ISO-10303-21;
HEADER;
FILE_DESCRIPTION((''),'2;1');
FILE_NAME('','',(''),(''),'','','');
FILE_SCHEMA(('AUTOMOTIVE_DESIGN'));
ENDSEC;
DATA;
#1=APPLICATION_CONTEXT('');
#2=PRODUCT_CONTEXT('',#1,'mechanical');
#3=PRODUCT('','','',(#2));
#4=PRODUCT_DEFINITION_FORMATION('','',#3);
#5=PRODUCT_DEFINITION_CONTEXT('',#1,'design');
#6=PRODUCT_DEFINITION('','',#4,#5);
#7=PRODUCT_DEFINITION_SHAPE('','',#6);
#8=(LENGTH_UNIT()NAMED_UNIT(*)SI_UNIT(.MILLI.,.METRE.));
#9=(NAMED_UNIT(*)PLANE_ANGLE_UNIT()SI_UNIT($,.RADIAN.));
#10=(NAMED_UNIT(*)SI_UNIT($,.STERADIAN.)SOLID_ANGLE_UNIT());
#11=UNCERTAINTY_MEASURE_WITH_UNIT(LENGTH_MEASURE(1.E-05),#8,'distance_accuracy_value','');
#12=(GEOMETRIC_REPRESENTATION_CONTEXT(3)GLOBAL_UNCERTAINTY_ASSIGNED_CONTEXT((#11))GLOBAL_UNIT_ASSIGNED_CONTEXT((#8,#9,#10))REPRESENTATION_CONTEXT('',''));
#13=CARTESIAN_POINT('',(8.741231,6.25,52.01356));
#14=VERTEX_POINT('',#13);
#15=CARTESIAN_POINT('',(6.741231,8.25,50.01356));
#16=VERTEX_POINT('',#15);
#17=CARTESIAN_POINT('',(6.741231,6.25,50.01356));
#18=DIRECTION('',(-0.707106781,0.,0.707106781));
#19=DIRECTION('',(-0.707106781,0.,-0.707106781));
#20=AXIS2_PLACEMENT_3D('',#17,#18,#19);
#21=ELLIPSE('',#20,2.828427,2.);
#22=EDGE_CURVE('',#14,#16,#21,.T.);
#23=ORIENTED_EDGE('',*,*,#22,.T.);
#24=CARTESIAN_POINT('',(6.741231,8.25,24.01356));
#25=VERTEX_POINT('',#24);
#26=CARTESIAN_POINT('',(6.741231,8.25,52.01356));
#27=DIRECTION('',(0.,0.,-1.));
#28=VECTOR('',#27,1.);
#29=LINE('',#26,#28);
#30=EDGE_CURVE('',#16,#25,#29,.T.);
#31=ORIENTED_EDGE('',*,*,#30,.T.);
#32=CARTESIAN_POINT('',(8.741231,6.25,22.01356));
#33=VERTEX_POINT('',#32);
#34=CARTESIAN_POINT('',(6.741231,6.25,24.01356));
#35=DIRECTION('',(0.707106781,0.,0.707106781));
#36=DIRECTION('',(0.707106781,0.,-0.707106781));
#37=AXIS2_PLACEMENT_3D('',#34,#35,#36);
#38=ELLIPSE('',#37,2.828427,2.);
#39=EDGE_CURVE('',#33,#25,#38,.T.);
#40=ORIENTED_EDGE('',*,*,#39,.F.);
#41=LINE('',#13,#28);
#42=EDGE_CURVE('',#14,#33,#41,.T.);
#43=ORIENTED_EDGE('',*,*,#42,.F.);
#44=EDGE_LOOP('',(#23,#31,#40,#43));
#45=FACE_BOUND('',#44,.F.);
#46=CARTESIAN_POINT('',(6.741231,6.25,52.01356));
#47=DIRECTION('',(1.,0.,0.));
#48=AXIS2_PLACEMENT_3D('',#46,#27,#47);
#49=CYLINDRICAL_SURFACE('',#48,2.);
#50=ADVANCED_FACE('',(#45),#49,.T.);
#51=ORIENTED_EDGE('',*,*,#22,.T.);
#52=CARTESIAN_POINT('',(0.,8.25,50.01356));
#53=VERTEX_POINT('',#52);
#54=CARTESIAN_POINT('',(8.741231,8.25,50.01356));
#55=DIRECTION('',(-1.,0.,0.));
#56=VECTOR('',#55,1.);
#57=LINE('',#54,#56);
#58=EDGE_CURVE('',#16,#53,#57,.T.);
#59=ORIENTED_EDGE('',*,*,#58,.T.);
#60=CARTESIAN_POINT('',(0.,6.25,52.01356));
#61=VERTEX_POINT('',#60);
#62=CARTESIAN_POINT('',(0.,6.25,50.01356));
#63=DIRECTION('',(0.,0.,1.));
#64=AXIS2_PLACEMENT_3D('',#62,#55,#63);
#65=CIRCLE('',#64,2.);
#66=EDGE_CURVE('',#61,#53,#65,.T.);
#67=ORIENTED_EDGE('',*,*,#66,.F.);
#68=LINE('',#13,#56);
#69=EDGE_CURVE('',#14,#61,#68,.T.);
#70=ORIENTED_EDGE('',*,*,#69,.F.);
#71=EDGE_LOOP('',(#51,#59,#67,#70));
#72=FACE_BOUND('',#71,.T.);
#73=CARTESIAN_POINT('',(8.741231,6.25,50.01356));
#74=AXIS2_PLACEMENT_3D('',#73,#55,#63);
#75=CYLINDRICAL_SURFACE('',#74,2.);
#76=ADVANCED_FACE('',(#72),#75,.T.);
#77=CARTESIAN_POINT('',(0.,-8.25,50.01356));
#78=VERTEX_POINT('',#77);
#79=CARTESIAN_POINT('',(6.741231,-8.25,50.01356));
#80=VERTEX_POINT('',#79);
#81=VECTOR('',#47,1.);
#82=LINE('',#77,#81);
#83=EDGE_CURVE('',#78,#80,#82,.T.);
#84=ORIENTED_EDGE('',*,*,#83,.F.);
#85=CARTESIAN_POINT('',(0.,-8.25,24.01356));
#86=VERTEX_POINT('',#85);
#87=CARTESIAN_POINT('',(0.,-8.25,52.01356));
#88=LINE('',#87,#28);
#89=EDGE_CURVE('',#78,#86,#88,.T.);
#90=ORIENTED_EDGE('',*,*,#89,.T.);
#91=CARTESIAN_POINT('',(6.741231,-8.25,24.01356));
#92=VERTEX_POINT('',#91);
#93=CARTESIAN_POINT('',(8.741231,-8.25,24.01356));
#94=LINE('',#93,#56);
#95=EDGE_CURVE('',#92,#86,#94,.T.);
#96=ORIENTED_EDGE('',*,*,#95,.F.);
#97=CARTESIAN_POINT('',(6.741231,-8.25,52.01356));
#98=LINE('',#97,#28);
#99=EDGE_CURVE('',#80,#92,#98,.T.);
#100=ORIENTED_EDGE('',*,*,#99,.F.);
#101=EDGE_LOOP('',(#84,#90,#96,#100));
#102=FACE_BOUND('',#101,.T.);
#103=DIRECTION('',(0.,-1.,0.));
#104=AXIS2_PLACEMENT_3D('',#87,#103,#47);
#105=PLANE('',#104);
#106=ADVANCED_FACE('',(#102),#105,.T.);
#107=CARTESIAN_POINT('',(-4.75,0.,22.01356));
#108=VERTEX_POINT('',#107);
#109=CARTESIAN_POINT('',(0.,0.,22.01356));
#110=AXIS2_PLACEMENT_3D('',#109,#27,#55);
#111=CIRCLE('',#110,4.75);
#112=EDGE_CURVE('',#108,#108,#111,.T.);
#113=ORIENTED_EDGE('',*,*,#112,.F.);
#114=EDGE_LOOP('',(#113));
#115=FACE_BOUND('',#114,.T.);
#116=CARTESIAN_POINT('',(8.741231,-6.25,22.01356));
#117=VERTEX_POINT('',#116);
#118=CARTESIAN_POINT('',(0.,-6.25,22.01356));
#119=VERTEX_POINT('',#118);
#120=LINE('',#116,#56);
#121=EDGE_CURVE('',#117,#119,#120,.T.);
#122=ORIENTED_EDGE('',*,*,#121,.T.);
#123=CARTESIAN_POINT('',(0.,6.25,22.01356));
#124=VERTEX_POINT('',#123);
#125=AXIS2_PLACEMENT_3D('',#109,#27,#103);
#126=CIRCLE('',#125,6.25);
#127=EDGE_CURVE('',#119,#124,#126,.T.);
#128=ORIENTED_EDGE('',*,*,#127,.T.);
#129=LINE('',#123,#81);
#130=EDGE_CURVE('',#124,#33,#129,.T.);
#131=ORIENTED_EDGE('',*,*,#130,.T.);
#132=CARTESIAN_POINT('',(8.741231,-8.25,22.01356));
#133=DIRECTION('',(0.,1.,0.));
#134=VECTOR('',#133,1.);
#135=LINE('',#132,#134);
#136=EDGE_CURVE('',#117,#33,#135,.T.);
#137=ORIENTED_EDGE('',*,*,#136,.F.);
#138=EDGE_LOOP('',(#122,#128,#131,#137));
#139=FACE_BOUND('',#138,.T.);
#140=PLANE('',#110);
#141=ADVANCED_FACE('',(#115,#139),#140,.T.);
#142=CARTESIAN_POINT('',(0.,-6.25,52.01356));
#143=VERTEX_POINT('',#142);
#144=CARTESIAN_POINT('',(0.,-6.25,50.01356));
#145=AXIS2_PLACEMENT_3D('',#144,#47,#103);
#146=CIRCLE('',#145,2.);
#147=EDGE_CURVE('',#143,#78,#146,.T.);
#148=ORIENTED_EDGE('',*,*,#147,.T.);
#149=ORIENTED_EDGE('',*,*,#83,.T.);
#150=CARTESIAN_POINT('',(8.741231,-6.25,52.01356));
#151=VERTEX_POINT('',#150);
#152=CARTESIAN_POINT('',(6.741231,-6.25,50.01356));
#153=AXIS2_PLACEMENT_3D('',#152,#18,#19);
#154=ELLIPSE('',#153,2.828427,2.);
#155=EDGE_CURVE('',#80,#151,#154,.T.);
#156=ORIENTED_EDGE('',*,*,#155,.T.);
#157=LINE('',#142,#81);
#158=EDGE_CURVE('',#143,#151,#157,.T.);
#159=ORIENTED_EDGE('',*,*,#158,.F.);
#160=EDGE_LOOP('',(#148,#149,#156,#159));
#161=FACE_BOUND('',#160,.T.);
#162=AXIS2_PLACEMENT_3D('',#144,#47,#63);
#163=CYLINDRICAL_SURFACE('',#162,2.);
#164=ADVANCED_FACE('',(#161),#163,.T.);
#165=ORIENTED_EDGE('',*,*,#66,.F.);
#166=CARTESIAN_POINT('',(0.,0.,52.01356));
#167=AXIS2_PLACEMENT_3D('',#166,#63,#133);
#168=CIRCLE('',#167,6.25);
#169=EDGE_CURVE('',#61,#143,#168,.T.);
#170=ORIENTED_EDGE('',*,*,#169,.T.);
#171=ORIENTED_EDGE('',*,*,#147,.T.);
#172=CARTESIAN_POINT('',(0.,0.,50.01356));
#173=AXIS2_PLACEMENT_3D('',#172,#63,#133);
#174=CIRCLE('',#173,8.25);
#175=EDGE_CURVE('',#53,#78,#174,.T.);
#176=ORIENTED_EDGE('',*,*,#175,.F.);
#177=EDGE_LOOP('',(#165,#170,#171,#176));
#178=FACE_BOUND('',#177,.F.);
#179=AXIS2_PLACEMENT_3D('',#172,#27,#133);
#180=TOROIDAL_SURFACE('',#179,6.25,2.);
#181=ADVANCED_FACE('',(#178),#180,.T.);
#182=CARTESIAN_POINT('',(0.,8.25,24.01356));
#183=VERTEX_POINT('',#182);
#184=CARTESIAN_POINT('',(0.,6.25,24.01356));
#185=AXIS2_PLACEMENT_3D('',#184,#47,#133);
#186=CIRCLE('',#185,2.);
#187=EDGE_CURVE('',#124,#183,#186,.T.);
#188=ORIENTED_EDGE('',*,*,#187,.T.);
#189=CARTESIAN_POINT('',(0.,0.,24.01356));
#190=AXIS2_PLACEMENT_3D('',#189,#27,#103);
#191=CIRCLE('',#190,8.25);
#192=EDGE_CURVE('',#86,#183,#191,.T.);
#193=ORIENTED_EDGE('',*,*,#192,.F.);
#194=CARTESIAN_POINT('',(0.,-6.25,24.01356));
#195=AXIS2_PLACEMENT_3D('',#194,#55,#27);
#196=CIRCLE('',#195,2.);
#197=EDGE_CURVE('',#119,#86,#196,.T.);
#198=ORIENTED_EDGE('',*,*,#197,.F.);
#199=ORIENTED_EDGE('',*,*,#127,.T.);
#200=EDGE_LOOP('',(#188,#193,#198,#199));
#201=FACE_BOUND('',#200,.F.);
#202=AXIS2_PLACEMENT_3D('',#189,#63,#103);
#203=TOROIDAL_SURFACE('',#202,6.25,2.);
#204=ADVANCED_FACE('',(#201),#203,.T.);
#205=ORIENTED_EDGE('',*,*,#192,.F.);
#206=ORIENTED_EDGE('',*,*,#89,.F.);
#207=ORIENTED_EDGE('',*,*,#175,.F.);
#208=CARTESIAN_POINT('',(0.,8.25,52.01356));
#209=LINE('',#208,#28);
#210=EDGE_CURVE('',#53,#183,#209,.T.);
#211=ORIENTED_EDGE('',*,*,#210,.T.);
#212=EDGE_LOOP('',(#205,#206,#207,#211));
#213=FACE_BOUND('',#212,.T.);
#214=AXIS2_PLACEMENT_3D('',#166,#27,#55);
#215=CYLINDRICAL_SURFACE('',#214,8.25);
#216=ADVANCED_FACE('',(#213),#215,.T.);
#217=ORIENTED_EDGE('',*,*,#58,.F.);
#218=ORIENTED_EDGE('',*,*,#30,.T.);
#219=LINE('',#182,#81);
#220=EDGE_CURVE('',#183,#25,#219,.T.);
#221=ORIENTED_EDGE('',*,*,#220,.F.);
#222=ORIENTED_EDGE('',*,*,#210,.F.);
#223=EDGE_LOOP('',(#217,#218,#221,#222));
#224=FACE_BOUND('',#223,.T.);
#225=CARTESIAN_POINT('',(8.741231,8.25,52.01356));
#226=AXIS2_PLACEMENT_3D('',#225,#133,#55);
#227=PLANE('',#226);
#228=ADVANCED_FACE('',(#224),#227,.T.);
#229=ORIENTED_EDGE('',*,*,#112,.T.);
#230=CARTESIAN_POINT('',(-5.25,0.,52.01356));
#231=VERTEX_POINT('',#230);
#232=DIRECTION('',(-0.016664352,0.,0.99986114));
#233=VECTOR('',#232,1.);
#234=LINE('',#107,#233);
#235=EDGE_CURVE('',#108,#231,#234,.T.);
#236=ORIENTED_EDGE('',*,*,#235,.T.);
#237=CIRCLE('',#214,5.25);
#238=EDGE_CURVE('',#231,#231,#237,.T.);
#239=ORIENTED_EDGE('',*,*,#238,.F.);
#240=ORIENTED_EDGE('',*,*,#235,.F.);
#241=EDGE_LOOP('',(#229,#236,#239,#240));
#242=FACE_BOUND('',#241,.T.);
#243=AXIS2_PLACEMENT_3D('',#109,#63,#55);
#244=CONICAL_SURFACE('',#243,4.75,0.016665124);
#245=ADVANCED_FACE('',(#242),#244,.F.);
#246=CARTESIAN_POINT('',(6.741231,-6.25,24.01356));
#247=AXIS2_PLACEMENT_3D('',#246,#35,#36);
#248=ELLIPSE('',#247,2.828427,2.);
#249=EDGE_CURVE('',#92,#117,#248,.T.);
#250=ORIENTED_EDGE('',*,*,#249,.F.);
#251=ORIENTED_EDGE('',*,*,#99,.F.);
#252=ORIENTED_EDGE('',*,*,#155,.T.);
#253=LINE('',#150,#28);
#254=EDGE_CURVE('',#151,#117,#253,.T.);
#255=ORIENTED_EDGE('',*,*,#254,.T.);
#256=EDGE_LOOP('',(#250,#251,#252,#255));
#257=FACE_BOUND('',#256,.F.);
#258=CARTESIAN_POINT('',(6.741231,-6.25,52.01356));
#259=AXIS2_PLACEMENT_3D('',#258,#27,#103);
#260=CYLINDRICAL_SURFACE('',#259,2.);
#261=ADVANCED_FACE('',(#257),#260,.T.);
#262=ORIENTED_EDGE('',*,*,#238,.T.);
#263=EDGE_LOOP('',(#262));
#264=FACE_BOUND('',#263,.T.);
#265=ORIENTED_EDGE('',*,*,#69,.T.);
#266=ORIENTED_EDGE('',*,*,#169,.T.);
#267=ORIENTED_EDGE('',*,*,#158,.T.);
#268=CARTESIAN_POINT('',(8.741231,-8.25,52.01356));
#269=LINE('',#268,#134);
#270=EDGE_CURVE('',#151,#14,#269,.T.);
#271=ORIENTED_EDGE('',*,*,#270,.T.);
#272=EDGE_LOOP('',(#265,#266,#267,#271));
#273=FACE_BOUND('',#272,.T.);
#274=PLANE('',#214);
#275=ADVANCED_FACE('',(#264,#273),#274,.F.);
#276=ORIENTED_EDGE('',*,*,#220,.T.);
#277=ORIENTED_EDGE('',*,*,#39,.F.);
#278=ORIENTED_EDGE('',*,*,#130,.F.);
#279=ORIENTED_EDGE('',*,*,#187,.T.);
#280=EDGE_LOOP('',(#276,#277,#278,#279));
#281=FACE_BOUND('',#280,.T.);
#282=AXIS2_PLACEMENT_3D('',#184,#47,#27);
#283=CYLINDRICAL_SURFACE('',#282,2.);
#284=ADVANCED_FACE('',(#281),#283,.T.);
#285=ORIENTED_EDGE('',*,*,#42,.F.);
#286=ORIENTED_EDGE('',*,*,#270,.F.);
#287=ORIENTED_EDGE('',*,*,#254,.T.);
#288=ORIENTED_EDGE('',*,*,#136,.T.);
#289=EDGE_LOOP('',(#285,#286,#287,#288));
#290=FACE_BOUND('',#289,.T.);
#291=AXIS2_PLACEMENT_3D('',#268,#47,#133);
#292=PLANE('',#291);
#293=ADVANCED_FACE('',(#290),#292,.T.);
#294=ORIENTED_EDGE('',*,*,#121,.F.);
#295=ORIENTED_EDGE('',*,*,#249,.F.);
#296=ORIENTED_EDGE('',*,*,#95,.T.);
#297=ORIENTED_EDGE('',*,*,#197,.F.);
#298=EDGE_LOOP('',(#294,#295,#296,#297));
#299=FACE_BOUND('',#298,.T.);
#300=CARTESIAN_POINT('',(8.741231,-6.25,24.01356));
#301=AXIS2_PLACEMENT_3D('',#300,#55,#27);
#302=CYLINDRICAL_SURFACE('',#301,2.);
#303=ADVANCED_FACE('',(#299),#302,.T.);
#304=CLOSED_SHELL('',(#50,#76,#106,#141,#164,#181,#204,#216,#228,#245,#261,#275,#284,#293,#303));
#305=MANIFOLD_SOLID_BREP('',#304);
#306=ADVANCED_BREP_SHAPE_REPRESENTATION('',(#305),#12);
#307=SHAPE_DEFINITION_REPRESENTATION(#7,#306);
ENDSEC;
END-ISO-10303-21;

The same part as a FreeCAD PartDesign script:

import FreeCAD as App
import Part
import Sketcher
Q = App.Units.Quantity


def edges_at(feature, points):
    """Names of the edges that pass closest to the given points."""
    edges = feature.Shape.Edges
    near = lambda p: min(range(len(edges)), key=lambda i: edges[i].distToShape(Part.Vertex(*p))[0])
    return sorted({f"Edge{near(p) + 1}" for p in points})


def add_polygon(sketch, points):
    """Adds a closed chain of lines whose ends are joined by coincident constraints."""
    first, n = sketch.GeometryCount, len(points)
    for a, b in zip(points, points[1:] + points[:1]):
        sketch.addGeometry(Part.LineSegment(App.Vector(*a, 0), App.Vector(*b, 0)), False)
    for i in range(n):
        sketch.addConstraint(Sketcher.Constraint("Coincident", first + i, 2, first + (i + 1) % n, 1))

doc = App.newDocument("Part")
body = doc.addObject("PartDesign::Body", "Body")

# Sketch on XZ plane
sketch1 = body.newObject("Sketcher::SketchObject", "Sketch")
sketch1.AttachmentSupport = (doc.getObject("XZ_Plane"), [""])
sketch1.MapMode = "FlatFace"
add_polygon(sketch1, [(-4.75, 22.01356), (-5.25, 52.01356), (-8.25, 52.01356), (-8.25, 22.01356)])  # lines 0-3
sketch1.addConstraint([
    Sketcher.Constraint("Horizontal", 1),
    Sketcher.Constraint("Vertical", 2),
    Sketcher.Constraint("Horizontal", 3),
    Sketcher.Constraint("DistanceX", 1, 2, 1, 1, Q("3 mm")),
    Sketcher.Constraint("DistanceY", 2, 2, 2, 1, Q("30 mm")),
    Sketcher.Constraint("DistanceX", 3, 1, 3, 2, Q("3.5 mm")),
    Sketcher.Constraint("DistanceX", 0, 2, -1, 1, Q("5.25 mm")),
    Sketcher.Constraint("DistanceY", -1, 1, 0, 2, Q("52.01356 mm")),
])
revolution = body.newObject("PartDesign::Revolution", "Revolution")
revolution.Profile = sketch1
revolution.ReferenceAxis = (sketch1, ["V_Axis"])
revolution.Angle = 360

# Sketch on XY plane
sketch2 = body.newObject("Sketcher::SketchObject", "Sketch001")
sketch2.AttachmentSupport = (doc.getObject("XY_Plane"), [""])
sketch2.MapMode = "FlatFace"
sketch2.AttachmentOffset = App.Placement(App.Vector(0, 0, 52.01356), App.Rotation())
add_polygon(sketch2, [(0, 8.25), (0, 5.552322), (5.43148, 5.552322), (5.43148, -5.641347), (0, -5.641347), (0, -8.25), (8.741231, -8.25), (8.741231, 8.25)])  # lines 0-7
sketch2.addConstraint([
    Sketcher.Constraint("Vertical", 0),
    Sketcher.Constraint("Horizontal", 1),
    Sketcher.Constraint("Vertical", 2),
    Sketcher.Constraint("Horizontal", 3),
    Sketcher.Constraint("Vertical", 4),
    Sketcher.Constraint("Horizontal", 5),
    Sketcher.Constraint("Vertical", 6),
    Sketcher.Constraint("Horizontal", 7),
    Sketcher.Constraint("Symmetric", 4, 2, 7, 2, -1, 1),
    Sketcher.Constraint("PointOnObject", 0, 2, -2),
    Sketcher.Constraint("DistanceY", 6, 1, 6, 2, Q("16.5 mm")),
    Sketcher.Constraint("DistanceX", 1, 1, 1, 2, Q("5.43148 mm")),
    Sketcher.Constraint("DistanceX", 5, 1, 5, 2, Q("8.741231 mm")),
    Sketcher.Constraint("DistanceY", 0, 2, 0, 1, Q("2.697678 mm")),
    Sketcher.Constraint("DistanceY", 2, 2, 2, 1, Q("11.193668 mm")),
])
pad1 = body.newObject("PartDesign::Pad", "Pad")
pad1.Profile = sketch2
pad1.Length = 30
pad1.Reversed = True
doc.recompute()

fillet = body.newObject("PartDesign::Fillet", "Fillet")
fillet.Base = (pad1, edges_at(pad1, [
    (8.741, -8.25, 37.014),
    (8.741, 8.25, 37.014),
    (4.371, -8.25, 52.014),
    (-8.25, 0, 22.014),
]))
fillet.Radius = 2

doc.recompute()
